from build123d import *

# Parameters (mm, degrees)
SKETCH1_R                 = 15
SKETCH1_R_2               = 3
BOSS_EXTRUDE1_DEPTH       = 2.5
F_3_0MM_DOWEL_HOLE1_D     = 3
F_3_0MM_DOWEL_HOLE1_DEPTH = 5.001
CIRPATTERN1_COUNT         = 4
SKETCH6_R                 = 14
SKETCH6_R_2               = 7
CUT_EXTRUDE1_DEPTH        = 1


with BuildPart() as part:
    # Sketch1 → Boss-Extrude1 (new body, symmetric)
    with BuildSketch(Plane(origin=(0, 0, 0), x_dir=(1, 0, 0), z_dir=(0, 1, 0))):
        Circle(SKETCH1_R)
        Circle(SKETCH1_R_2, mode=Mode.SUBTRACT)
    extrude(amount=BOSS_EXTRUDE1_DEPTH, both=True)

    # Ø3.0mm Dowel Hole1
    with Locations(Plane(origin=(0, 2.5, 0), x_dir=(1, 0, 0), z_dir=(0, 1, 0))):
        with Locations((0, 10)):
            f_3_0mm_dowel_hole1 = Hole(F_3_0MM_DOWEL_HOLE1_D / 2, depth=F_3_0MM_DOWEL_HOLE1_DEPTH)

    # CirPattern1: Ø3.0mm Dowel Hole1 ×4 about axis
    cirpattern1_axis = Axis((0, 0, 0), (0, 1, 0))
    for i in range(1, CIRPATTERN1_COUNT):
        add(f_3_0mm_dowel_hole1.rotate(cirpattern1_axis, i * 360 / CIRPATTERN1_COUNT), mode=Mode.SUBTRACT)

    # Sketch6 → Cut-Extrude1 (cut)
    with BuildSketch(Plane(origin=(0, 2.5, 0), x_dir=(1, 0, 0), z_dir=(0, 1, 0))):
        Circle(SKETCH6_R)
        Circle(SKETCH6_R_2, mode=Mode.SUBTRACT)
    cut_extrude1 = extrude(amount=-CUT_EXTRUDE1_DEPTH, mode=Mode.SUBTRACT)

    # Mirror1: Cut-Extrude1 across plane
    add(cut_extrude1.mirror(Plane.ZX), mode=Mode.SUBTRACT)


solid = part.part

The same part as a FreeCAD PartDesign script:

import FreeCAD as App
import Part
import Sketcher

V = App.Vector

doc = App.newDocument("Part")
body = doc.addObject("PartDesign::Body", "Body")

sketch1 = body.newObject("Sketcher::SketchObject", "Sketch")
sketch1.AttachmentSupport = (doc.getObject("XZ_Plane"), [""])
sketch1.MapMode = "FlatFace"
sketch1.addGeometry([
    Part.Circle(V(0, 0, 0), V(0, 0, 1), 15),
    Part.Circle(V(0, 0, 0), V(0, 0, 1), 3),
], False)
sketch1.addConstraint([
    Sketcher.Constraint("Coincident", 0, 3, -1, 1),
    Sketcher.Constraint("Coincident", 1, 3, -1, 1),
    Sketcher.Constraint("Diameter", 0, 30.0),
    Sketcher.Constraint("Diameter", 1, 6.0),
])
pad1 = body.newObject("PartDesign::Pad", "Pad")
pad1.Profile = sketch1
pad1.Length = 5
pad1.Midplane = True

sketch2 = body.newObject("Sketcher::SketchObject", "Sketch001")
sketch2.AttachmentSupport = (doc.getObject("XZ_Plane"), [""])
sketch2.MapMode = "FlatFace"
sketch2.AttachmentOffset = App.Placement(V(0, 0, -2.5), App.Rotation())
sketch2.addGeometry(Part.Circle(V(0, -10, 0), V(0, 0, 1), 1.5), False)
sketch2.addConstraint([
    Sketcher.Constraint("PointOnObject", 0, 3, -2),
    Sketcher.Constraint("Diameter", 0, 3.0),
    Sketcher.Constraint("DistanceY", 0, 3, -1, 1, 10.0),
])
doc.recompute()
hole = body.newObject("PartDesign::Hole", "Hole")
hole.Profile = sketch2
hole.ThreadType = "None"
hole.Diameter = 3
hole.DepthType = "Dimension"
hole.Depth = 5.001
hole.DrillPoint = "Flat"
hole.Reversed = True
doc.recompute()

polarpattern = body.newObject("PartDesign::PolarPattern", "PolarPattern")
polarpattern.Originals = [hole]
polarpattern.Axis = (doc.getObject("Y_Axis"), [""])
polarpattern.Angle = 360
polarpattern.Occurrences = 4
body.Tip = polarpattern

sketch3 = body.newObject("Sketcher::SketchObject", "Sketch002")
sketch3.AttachmentSupport = (doc.getObject("XZ_Plane"), [""])
sketch3.MapMode = "FlatFace"
sketch3.AttachmentOffset = App.Placement(V(0, 0, -2.5), App.Rotation())
sketch3.addGeometry([
    Part.Circle(V(0, 0, 0), V(0, 0, 1), 14),
    Part.Circle(V(0, 0, 0), V(0, 0, 1), 7),
], False)
sketch3.addConstraint([
    Sketcher.Constraint("Coincident", 0, 3, -1, 1),
    Sketcher.Constraint("Coincident", 1, 3, -1, 1),
    Sketcher.Constraint("Diameter", 0, 28.0),
    Sketcher.Constraint("Diameter", 1, 14.0),
])
pocket1 = body.newObject("PartDesign::Pocket", "Pocket")
pocket1.Profile = sketch3
pocket1.Length = 1
pocket1.Reversed = True
doc.recompute()

mirrored = body.newObject("PartDesign::Mirrored", "Mirrored")
mirrored.Originals = [pocket1]
mirrored.MirrorPlane = (doc.getObject("XZ_Plane"), [""])
body.Tip = mirrored

doc.recompute()
